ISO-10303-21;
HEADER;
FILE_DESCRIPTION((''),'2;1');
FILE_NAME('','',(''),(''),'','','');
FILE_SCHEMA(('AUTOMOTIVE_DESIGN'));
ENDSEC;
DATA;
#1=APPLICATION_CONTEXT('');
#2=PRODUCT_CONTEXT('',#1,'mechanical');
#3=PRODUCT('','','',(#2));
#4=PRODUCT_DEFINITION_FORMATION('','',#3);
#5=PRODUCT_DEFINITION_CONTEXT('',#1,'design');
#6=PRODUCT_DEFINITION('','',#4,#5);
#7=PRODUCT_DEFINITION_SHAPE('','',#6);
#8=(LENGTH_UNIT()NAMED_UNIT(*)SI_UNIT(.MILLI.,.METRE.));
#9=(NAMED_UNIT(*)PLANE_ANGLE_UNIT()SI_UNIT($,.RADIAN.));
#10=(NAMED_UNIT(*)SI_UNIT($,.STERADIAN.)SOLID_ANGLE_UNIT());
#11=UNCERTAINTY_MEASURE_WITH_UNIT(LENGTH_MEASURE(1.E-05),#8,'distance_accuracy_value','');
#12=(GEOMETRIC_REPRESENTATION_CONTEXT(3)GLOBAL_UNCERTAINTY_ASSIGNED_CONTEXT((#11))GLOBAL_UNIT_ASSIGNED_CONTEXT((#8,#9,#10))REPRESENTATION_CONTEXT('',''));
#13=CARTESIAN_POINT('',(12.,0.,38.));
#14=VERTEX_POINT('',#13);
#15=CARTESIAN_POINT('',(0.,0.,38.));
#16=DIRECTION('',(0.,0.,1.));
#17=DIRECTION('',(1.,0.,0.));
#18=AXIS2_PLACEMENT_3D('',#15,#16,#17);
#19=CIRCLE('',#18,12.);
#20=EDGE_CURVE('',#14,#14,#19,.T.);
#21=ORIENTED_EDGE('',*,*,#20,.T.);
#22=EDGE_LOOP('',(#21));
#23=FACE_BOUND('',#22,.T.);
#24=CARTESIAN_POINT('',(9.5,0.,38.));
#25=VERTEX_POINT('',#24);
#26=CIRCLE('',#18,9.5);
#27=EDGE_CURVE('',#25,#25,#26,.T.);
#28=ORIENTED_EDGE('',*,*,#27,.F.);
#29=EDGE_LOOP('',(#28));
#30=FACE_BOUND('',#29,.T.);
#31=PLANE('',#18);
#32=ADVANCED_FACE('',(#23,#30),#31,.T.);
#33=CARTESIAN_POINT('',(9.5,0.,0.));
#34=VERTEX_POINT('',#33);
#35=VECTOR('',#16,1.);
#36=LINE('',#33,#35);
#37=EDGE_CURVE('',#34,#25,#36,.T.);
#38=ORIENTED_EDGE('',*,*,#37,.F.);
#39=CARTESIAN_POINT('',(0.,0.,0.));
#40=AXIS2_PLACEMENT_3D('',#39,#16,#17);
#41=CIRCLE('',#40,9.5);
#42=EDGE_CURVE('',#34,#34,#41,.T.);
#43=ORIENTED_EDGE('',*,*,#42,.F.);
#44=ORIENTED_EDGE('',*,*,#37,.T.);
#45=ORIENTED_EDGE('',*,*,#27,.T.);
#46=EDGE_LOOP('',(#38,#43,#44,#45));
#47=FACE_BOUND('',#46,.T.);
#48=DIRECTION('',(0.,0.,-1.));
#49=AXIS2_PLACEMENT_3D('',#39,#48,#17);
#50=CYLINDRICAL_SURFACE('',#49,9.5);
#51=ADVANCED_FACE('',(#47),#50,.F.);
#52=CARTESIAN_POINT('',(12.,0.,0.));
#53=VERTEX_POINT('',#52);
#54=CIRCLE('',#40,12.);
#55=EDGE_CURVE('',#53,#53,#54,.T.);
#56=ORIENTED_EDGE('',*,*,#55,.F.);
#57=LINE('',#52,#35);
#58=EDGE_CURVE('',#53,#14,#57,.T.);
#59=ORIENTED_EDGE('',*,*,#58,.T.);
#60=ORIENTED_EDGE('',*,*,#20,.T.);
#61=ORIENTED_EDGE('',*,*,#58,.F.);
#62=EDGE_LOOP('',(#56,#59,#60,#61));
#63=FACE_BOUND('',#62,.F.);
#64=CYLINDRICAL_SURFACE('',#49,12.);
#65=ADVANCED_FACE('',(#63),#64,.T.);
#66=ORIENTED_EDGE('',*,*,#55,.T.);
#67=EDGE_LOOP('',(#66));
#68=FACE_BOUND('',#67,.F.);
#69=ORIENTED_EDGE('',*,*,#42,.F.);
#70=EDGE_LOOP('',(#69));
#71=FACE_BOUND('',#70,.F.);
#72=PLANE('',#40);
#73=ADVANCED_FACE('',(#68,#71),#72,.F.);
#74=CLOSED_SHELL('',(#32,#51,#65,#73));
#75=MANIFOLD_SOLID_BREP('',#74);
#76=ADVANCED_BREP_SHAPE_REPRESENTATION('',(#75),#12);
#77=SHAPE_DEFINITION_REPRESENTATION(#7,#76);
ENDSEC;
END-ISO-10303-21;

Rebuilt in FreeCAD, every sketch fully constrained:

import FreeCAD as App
import Part
import Sketcher

V = App.Vector
Q = App.Units.Quantity

doc = App.newDocument("Part")
body = doc.addObject("PartDesign::Body", "Body")

sketch1 = doc.addObject("Sketcher::SketchObject", "Sketch")
body.addObject(sketch1)
sketch1.AttachmentSupport = (doc.XY_Plane, [""])
sketch1.MapMode = "FlatFace"
sketch1.addGeometry(Part.Circle(V(0, 0, 0), V(0, 0, 1), 12), False)
sketch1.addGeometry(Part.Circle(V(0, 0, 0), V(0, 0, 1), 10), False)
sketch1.addConstraint(Sketcher.Constraint("Coincident", 0, 3, -1, 1))
sketch1.addConstraint(Sketcher.Constraint("Coincident", 1, 3, -1, 1))
sketch1.addConstraint(Sketcher.Constraint("Diameter", 0, Q("24 mm")))
sketch1.addConstraint(Sketcher.Constraint("Diameter", 1, Q("19 mm")))
pad1 = doc.addObject("PartDesign::Pad", "Pad")
body.addObject(pad1)
pad1.Profile = sketch1
pad1.Length = 38

doc.recompute()
